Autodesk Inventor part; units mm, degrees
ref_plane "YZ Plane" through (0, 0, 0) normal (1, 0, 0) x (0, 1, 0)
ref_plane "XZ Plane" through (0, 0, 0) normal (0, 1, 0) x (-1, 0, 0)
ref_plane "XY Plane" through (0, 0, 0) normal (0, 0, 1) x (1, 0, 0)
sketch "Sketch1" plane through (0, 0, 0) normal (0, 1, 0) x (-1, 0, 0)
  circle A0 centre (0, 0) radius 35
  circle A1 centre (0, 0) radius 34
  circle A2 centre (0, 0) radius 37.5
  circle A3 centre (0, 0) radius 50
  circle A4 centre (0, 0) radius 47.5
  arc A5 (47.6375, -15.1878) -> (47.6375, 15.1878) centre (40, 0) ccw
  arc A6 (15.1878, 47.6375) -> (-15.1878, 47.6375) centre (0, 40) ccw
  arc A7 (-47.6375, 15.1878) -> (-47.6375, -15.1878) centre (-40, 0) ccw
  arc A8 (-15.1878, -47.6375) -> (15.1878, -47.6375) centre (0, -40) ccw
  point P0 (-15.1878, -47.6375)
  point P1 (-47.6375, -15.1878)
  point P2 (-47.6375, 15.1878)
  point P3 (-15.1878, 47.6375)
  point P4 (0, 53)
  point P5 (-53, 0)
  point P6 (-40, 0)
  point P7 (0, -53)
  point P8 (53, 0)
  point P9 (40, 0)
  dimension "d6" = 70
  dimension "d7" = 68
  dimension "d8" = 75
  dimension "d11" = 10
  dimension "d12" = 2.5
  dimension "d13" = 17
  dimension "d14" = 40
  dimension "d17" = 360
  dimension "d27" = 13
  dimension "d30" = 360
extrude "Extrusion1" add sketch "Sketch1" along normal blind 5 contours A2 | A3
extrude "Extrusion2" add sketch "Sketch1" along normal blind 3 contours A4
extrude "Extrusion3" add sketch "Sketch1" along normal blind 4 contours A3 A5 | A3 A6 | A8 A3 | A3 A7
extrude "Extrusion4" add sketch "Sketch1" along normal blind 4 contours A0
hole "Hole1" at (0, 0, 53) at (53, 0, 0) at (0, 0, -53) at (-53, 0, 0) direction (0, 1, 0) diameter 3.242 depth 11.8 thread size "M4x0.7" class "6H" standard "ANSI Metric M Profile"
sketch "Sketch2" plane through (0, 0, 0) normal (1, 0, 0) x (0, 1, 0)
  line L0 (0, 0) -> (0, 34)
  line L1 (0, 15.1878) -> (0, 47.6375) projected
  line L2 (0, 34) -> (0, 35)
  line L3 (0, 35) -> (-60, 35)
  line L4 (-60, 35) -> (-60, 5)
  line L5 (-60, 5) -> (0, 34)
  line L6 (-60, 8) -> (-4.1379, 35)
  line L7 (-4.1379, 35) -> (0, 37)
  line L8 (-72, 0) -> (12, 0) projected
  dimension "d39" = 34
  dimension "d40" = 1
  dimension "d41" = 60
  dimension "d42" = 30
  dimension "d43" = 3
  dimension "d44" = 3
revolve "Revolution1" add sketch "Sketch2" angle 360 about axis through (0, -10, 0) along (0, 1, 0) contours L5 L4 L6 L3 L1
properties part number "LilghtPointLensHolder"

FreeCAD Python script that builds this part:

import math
import FreeCAD as App
import Part
import Sketcher

V = App.Vector

doc = App.newDocument("Part")
params = doc.addObject("Spreadsheet::Sheet", "Params")
for row, (alias, value) in enumerate([
    ("sketch1_diameter", "75 mm"),
    ("sketch1_diameter2", "70 mm"),
    ("sketch1_diameter3", "100 mm"),
    ("sketch1_diameter4", "95 mm"),
    ("pad1_length", "5 mm"),
    ("sketch2_diameter", "75 mm"),
    ("sketch2_diameter2", "95 mm"),
    ("pad2_length", "3 mm"),
    ("sketch3_radius", "17 mm"),
    ("sketch3_radius2", "50 mm"),
    ("pad3_length", "4 mm"),
    ("sketch4_diameter", "70 mm"),
    ("sketch4_diameter2", "68 mm"),
    ("pad4_length", "4 mm"),
    ("hole_diameter", "3.242 mm"),
    ("hole_depth", "11.8 mm"),
    ("sketch6_height", "1 mm"),
    ("sketch6_height2", "3 mm"),
    ("revolution_angle", "360 deg"),
], start=1):
    params.set(f"A{row}", alias)
    params.set(f"B{row}", "=" + value)
    params.setAlias(f"B{row}", alias)

body = doc.addObject("PartDesign::Body", "Body")
body.AllowCompound = True

# Sketch on XZ plane
sketch1 = doc.addObject("Sketcher::SketchObject", "Sketch")
body.addObject(sketch1)
sketch1.AttachmentSupport = (doc.XZ_Plane, [""])
sketch1.MapMode = "FlatFace"
sketch1.addGeometry(Part.Circle(V(0, 0, 0), V(0, 0, 1), 38), False)
sketch1.addGeometry(Part.Circle(V(0, 0, 0), V(0, 0, 1), 35), False)
sketch1.addGeometry(Part.Circle(V(0, 0, 0), V(0, 0, 1), 50), False)
sketch1.addGeometry(Part.Circle(V(0, 0, 0), V(0, 0, 1), 48), False)
sketch1.addConstraint(Sketcher.Constraint("Coincident", 0, 3, -1, 1))
sketch1.addConstraint(Sketcher.Constraint("Coincident", 1, 3, -1, 1))
sketch1.addConstraint(Sketcher.Constraint("Coincident", 2, 3, -1, 1))
sketch1.addConstraint(Sketcher.Constraint("Coincident", 3, 3, -1, 1))
sketch1.addConstraint(Sketcher.Constraint("Diameter", 0, 75.0))
sketch1.addConstraint(Sketcher.Constraint("Diameter", 1, 70.0))
sketch1.addConstraint(Sketcher.Constraint("Diameter", 2, 100.0))
sketch1.addConstraint(Sketcher.Constraint("Diameter", 3, 95.0))
sketch1.setExpression("Constraints[4]", "Params.sketch1_diameter")
sketch1.setExpression("Constraints[5]", "Params.sketch1_diameter2")
sketch1.setExpression("Constraints[6]", "Params.sketch1_diameter3")
sketch1.setExpression("Constraints[7]", "Params.sketch1_diameter4")
pad1 = doc.addObject("PartDesign::Pad", "Pad")
body.addObject(pad1)
pad1.Profile = sketch1
pad1.setExpression("Length", "Params.pad1_length")
pad1.Reversed = True

# Sketch on XZ plane
sketch2 = doc.addObject("Sketcher::SketchObject", "Sketch001")
body.addObject(sketch2)
sketch2.AttachmentSupport = (doc.XZ_Plane, [""])
sketch2.MapMode = "FlatFace"
sketch2.addGeometry(Part.Circle(V(0, 0, 0), V(0, 0, 1), 48), False)
sketch2.addGeometry(Part.Circle(V(0, 0, 0), V(0, 0, 1), 38), False)
sketch2.addConstraint(Sketcher.Constraint("Coincident", 0, 3, -1, 1))
sketch2.addConstraint(Sketcher.Constraint("Coincident", 1, 3, -1, 1))
sketch2.addConstraint(Sketcher.Constraint("Diameter", 1, 75.0))
sketch2.addConstraint(Sketcher.Constraint("Diameter", 0, 95.0))
sketch2.setExpression("Constraints[2]", "Params.sketch2_diameter")
sketch2.setExpression("Constraints[3]", "Params.sketch2_diameter2")
pad2 = doc.addObject("PartDesign::Pad", "Pad001")
body.addObject(pad2)
pad2.Profile = sketch2
pad2.setExpression("Length", "Params.pad2_length")
pad2.Reversed = True

# Sketch on XZ plane
sketch3 = doc.addObject("Sketcher::SketchObject", "Sketch002")
body.addObject(sketch3)
sketch3.AttachmentSupport = (doc.XZ_Plane, [""])
sketch3.MapMode = "FlatFace"
sketch3.addGeometry(Part.ArcOfCircle(Part.Circle(V(0, 0, 0), V(0, 0, 1), 50), math.radians(162), math.radians(198)), False)
sketch3.addGeometry(Part.ArcOfCircle(Part.Circle(V(-40, 0, 0), V(0, 0, 1), 17), math.radians(117), math.radians(243)), False)
sketch3.addGeometry(Part.ArcOfCircle(Part.Circle(V(0, 0, 0), V(0, 0, 1), 50), math.radians(72), math.radians(108)), False)
sketch3.addGeometry(Part.ArcOfCircle(Part.Circle(V(0, 40, 0), V(0, 0, 1), 17), math.radians(27), math.radians(153)), False)
sketch3.addGeometry(Part.ArcOfCircle(Part.Circle(V(0, -40, 0), V(0, 0, 1), 17), math.radians(-153), math.radians(-27)), False)
sketch3.addGeometry(Part.ArcOfCircle(Part.Circle(V(0, 0, 0), V(0, 0, 1), 50), math.radians(-108), math.radians(-72)), False)
sketch3.addGeometry(Part.ArcOfCircle(Part.Circle(V(0, 0, 0), V(0, 0, 1), 50), math.radians(-18), math.radians(18)), False)
sketch3.addGeometry(Part.ArcOfCircle(Part.Circle(V(40, 0, 0), V(0, 0, 1), 17), math.radians(-63), math.radians(63)), False)
sketch3.addConstraint(Sketcher.Constraint("Coincident", 0, 1, 1, 1))
sketch3.addConstraint(Sketcher.Constraint("Coincident", 1, 2, 0, 2))
sketch3.addConstraint(Sketcher.Constraint("Coincident", 2, 1, 3, 1))
sketch3.addConstraint(Sketcher.Constraint("Coincident", 3, 2, 2, 2))
sketch3.addConstraint(Sketcher.Constraint("Coincident", 4, 1, 5, 1))
sketch3.addConstraint(Sketcher.Constraint("Coincident", 5, 2, 4, 2))
sketch3.addConstraint(Sketcher.Constraint("Coincident", 6, 1, 7, 1))
sketch3.addConstraint(Sketcher.Constraint("Coincident", 7, 2, 6, 2))
sketch3.addConstraint(Sketcher.Constraint("Coincident", 0, 3, -1, 1))
sketch3.addConstraint(Sketcher.Constraint("Coincident", 2, 3, -1, 1))
sketch3.addConstraint(Sketcher.Constraint("Coincident", 5, 3, -1, 1))
sketch3.addConstraint(Sketcher.Constraint("Coincident", 6, 3, -1, 1))
sketch3.addConstraint(Sketcher.Constraint("Equal", 0, 2))
sketch3.addConstraint(Sketcher.Constraint("Equal", 1, 3))
sketch3.addConstraint(Sketcher.Constraint("Equal", 3, 4))
sketch3.addConstraint(Sketcher.Constraint("Equal", 2, 5))
sketch3.addConstraint(Sketcher.Constraint("Equal", 5, 6))
sketch3.addConstraint(Sketcher.Constraint("Equal", 4, 7))
sketch3.addConstraint(Sketcher.Constraint("Symmetric", 3, 3, 4, 3, -1, 1))
sketch3.addConstraint(Sketcher.Constraint("Symmetric", 1, 3, 7, 3, -1, 1))
sketch3.addConstraint(Sketcher.Constraint("PointOnObject", 1, 3, -1))
sketch3.addConstraint(Sketcher.Constraint("PointOnObject", 3, 3, -2))
sketch3.addConstraint(Sketcher.Constraint("Radius", 1, 17.0))
sketch3.addConstraint(Sketcher.Constraint("DistanceX", 1, 3, -1, 1, 40.0))
sketch3.addConstraint(Sketcher.Constraint("DistanceY", -1, 1, 3, 3, 40.0))
sketch3.addConstraint(Sketcher.Constraint("Radius", 0, 50.0))
sketch3.setExpression("Constraints[22]", "Params.sketch3_radius")
sketch3.setExpression("Constraints[25]", "Params.sketch3_radius2")
pad3 = doc.addObject("PartDesign::Pad", "Pad002")
body.addObject(pad3)
pad3.Profile = sketch3
pad3.setExpression("Length", "Params.pad3_length")
pad3.Reversed = True

# Sketch on XZ plane
sketch4 = doc.addObject("Sketcher::SketchObject", "Sketch003")
body.addObject(sketch4)
sketch4.AttachmentSupport = (doc.XZ_Plane, [""])
sketch4.MapMode = "FlatFace"
sketch4.addGeometry(Part.Circle(V(0, 0, 0), V(0, 0, 1), 35), False)
sketch4.addGeometry(Part.Circle(V(0, 0, 0), V(0, 0, 1), 34), False)
sketch4.addConstraint(Sketcher.Constraint("Coincident", 0, 3, -1, 1))
sketch4.addConstraint(Sketcher.Constraint("Coincident", 1, 3, -1, 1))
sketch4.addConstraint(Sketcher.Constraint("Diameter", 0, 70.0))
sketch4.addConstraint(Sketcher.Constraint("Diameter", 1, 68.0))
sketch4.setExpression("Constraints[2]", "Params.sketch4_diameter")
sketch4.setExpression("Constraints[3]", "Params.sketch4_diameter2")
pad4 = doc.addObject("PartDesign::Pad", "Pad003")
body.addObject(pad4)
pad4.Profile = sketch4
pad4.setExpression("Length", "Params.pad4_length")
pad4.Reversed = True

# Sketch on XZ plane
sketch5 = doc.addObject("Sketcher::SketchObject", "Sketch004")
body.addObject(sketch5)
sketch5.AttachmentSupport = (doc.XZ_Plane, [""])
sketch5.MapMode = "FlatFace"
sketch5.addGeometry(Part.Circle(V(0, 53, 0), V(0, 0, 1), 1.6), False)
sketch5.addGeometry(Part.Circle(V(53, 0, 0), V(0, 0, 1), 1.6), False)
sketch5.addGeometry(Part.Circle(V(0, -53, 0), V(0, 0, 1), 1.6), False)
sketch5.addGeometry(Part.Circle(V(-53, 0, 0), V(0, 0, 1), 1.6), False)
sketch5.addConstraint(Sketcher.Constraint("Equal", 0, 1))
sketch5.addConstraint(Sketcher.Constraint("Equal", 1, 2))
sketch5.addConstraint(Sketcher.Constraint("Equal", 2, 3))
sketch5.addConstraint(Sketcher.Constraint("Symmetric", 0, 3, 2, 3, -1, 1))
sketch5.addConstraint(Sketcher.Constraint("Symmetric", 1, 3, 3, 3, -1, 1))
sketch5.addConstraint(Sketcher.Constraint("PointOnObject", 0, 3, -2))
sketch5.addConstraint(Sketcher.Constraint("PointOnObject", 1, 3, -1))
sketch5.addConstraint(Sketcher.Constraint("Diameter", 0, 3.242))
sketch5.addConstraint(Sketcher.Constraint("DistanceY", -1, 1, 0, 3, 53.0))
sketch5.addConstraint(Sketcher.Constraint("DistanceX", -1, 1, 1, 3, 53.0))
doc.recompute()
hole = doc.addObject("PartDesign::Hole", "Hole")
body.addObject(hole)
hole.Profile = sketch5
hole.ThreadType = "None"
hole.setExpression("Diameter", "Params.hole_diameter")
hole.DepthType = "Dimension"
hole.setExpression("Depth", "Params.hole_depth")
hole.DrillPoint = "Flat"

# Sketch on YZ plane
sketch6 = doc.addObject("Sketcher::SketchObject", "Sketch005")
body.addObject(sketch6)
sketch6.AttachmentSupport = (doc.YZ_Plane, [""])
sketch6.MapMode = "FlatFace"
sketch6.addGeometry(Part.LineSegment(V(-60, 5, 0), V(0, 34, 0)), False)
sketch6.addGeometry(Part.LineSegment(V(0, 34, 0), V(0, 35, 0)), False)
sketch6.addGeometry(Part.LineSegment(V(0, 35, 0), V(-4.1, 35, 0)), False)
sketch6.addGeometry(Part.LineSegment(V(-4.1, 35, 0), V(-60, 8, 0)), False)
sketch6.addGeometry(Part.LineSegment(V(-60, 8, 0), V(-60, 5, 0)), False)
sketch6.addConstraint(Sketcher.Constraint("Coincident", 0, 2, 1, 1))
sketch6.addConstraint(Sketcher.Constraint("Coincident", 1, 2, 2, 1))
sketch6.addConstraint(Sketcher.Constraint("Coincident", 2, 2, 3, 1))
sketch6.addConstraint(Sketcher.Constraint("Coincident", 3, 2, 4, 1))
sketch6.addConstraint(Sketcher.Constraint("Coincident", 4, 2, 0, 1))
sketch6.addConstraint(Sketcher.Constraint("Vertical", 1))
sketch6.addConstraint(Sketcher.Constraint("Horizontal", 2))
sketch6.addConstraint(Sketcher.Constraint("Vertical", 4))
sketch6.addConstraint(Sketcher.Constraint("PointOnObject", 0, 2, -2))
sketch6.addConstraint(Sketcher.Constraint("Parallel", 0, 3))
sketch6.addConstraint(Sketcher.Constraint("DistanceY", 1, 1, 1, 2, 1.0))
sketch6.addConstraint(Sketcher.Constraint("DistanceY", 4, 2, 4, 1, 3.0))
sketch6.addConstraint(Sketcher.Constraint("DistanceY", -1, 1, 0, 2, 34.0))
sketch6.addConstraint(Sketcher.Constraint("DistanceX", 3, 2, -1, 1, 60.0))
sketch6.addConstraint(Sketcher.Constraint("DistanceY", 4, 2, 2, 2, 30.0))
sketch6.setExpression("Constraints[10]", "Params.sketch6_height")
sketch6.setExpression("Constraints[11]", "Params.sketch6_height2")
revolution = doc.addObject("PartDesign::Revolution", "Revolution")
body.addObject(revolution)
revolution.Profile = sketch6
revolution.ReferenceAxis = (sketch6, ["H_Axis"])
revolution.setExpression("Angle", "Params.revolution_angle")

doc.recompute()
